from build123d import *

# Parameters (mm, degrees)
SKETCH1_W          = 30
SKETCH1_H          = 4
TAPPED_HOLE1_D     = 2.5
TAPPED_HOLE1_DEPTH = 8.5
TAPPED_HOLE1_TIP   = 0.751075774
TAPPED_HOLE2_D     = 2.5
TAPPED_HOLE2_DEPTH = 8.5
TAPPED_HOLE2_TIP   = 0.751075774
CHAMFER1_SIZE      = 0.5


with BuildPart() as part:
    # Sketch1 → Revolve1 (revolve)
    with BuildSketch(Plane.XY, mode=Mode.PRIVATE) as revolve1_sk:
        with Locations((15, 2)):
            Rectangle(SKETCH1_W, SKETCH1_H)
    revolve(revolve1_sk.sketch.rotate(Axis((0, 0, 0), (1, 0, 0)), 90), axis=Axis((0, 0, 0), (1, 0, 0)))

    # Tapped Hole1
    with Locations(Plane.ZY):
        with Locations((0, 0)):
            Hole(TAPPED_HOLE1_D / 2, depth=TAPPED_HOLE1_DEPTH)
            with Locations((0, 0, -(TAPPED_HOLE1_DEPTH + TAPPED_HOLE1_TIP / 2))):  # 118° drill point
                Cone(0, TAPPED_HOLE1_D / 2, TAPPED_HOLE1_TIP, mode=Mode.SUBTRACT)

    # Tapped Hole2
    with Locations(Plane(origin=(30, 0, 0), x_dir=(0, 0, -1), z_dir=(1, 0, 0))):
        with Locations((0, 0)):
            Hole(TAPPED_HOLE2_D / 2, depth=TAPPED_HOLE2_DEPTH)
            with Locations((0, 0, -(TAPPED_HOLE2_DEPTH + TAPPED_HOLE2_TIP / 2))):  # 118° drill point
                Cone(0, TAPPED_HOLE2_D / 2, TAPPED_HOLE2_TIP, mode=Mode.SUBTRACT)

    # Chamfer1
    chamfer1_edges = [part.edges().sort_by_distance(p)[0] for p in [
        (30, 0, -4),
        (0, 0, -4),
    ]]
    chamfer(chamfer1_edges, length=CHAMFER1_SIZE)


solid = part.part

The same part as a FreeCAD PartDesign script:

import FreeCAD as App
import Part
import Sketcher
Q = App.Units.Quantity


def edges_at(feature, points):
    """Names of the edges that pass closest to the given points."""
    edges = feature.Shape.Edges
    near = lambda p: min(range(len(edges)), key=lambda i: edges[i].distToShape(Part.Vertex(*p))[0])
    return sorted({f"Edge{near(p) + 1}" for p in points})

doc = App.newDocument("Part")
body = doc.addObject("PartDesign::Body", "Body")

# Sketch on XY plane
sketch1 = body.newObject("Sketcher::SketchObject", "Sketch")
sketch1.AttachmentSupport = (doc.getObject("XY_Plane"), [""])
sketch1.MapMode = "FlatFace"
sketch1.addGeometry(Part.LineSegment(App.Vector(0, 4, 0), App.Vector(0, 0, 0)), False)
sketch1.addGeometry(Part.LineSegment(App.Vector(0, 0, 0), App.Vector(30, 0, 0)), False)
sketch1.addGeometry(Part.LineSegment(App.Vector(30, 0, 0), App.Vector(30, 4, 0)), False)
sketch1.addGeometry(Part.LineSegment(App.Vector(30, 4, 0), App.Vector(0, 4, 0)), False)
sketch1.addConstraint(Sketcher.Constraint("Coincident", 0, 2, 1, 1))
sketch1.addConstraint(Sketcher.Constraint("Coincident", 1, 2, 2, 1))
sketch1.addConstraint(Sketcher.Constraint("Coincident", 2, 2, 3, 1))
sketch1.addConstraint(Sketcher.Constraint("Coincident", 3, 2, 0, 1))
sketch1.addConstraint(Sketcher.Constraint("Vertical", 0))
sketch1.addConstraint(Sketcher.Constraint("Horizontal", 1))
sketch1.addConstraint(Sketcher.Constraint("Vertical", 2))
sketch1.addConstraint(Sketcher.Constraint("Horizontal", 3))
sketch1.addConstraint(Sketcher.Constraint("Coincident", 0, 2, -1, 1))
sketch1.addConstraint(Sketcher.Constraint("DistanceX", 1, 1, 1, 2, Q("30 mm")))
sketch1.addConstraint(Sketcher.Constraint("DistanceY", 0, 2, 0, 1, Q("4 mm")))
revolution = body.newObject("PartDesign::Revolution", "Revolution")
revolution.Profile = sketch1
revolution.ReferenceAxis = (sketch1, ["H_Axis"])
revolution.Angle = 360

# Sketch on YZ plane
sketch2 = body.newObject("Sketcher::SketchObject", "Sketch001")
sketch2.AttachmentSupport = (doc.getObject("YZ_Plane"), [""])
sketch2.MapMode = "FlatFace"
sketch2.addGeometry(Part.Circle(App.Vector(0, 0, 0), App.Vector(0, 0, 1), 1.2), False)
sketch2.addConstraint(Sketcher.Constraint("Coincident", 0, 3, -1, 1))
sketch2.addConstraint(Sketcher.Constraint("Diameter", 0, Q("2.5 mm")))
doc.recompute()
hole = body.newObject("PartDesign::Hole", "Hole")
hole.Profile = sketch2
hole.ThreadType = "None"
hole.Diameter = 2.5
hole.DepthType = "Dimension"
hole.Depth = 8.5
hole.DrillPoint = "Angled"
hole.DrillPointAngle = 118
hole.Reversed = True

# Sketch on YZ plane
sketch3 = body.newObject("Sketcher::SketchObject", "Sketch002")
sketch3.AttachmentSupport = (doc.getObject("YZ_Plane"), [""])
sketch3.MapMode = "FlatFace"
sketch3.AttachmentOffset = App.Placement(App.Vector(0, 0, 30), App.Rotation())
sketch3.addGeometry(Part.Circle(App.Vector(0, 0, 0), App.Vector(0, 0, 1), 1.2), False)
sketch3.addConstraint(Sketcher.Constraint("Coincident", 0, 3, -1, 1))
sketch3.addConstraint(Sketcher.Constraint("Diameter", 0, Q("2.5 mm")))
doc.recompute()
hole2 = body.newObject("PartDesign::Hole", "Hole001")
hole2.Profile = sketch3
hole2.ThreadType = "None"
hole2.Diameter = 2.5
hole2.DepthType = "Dimension"
hole2.Depth = 8.5
hole2.DrillPoint = "Angled"
hole2.DrillPointAngle = 118
doc.recompute()

chamfer = body.newObject("PartDesign::Chamfer", "Chamfer")
chamfer.Base = (hole2, edges_at(hole2, [(30, 0, -4), (0, 0, -4)]))
chamfer.Size = 0.5

doc.recompute()
